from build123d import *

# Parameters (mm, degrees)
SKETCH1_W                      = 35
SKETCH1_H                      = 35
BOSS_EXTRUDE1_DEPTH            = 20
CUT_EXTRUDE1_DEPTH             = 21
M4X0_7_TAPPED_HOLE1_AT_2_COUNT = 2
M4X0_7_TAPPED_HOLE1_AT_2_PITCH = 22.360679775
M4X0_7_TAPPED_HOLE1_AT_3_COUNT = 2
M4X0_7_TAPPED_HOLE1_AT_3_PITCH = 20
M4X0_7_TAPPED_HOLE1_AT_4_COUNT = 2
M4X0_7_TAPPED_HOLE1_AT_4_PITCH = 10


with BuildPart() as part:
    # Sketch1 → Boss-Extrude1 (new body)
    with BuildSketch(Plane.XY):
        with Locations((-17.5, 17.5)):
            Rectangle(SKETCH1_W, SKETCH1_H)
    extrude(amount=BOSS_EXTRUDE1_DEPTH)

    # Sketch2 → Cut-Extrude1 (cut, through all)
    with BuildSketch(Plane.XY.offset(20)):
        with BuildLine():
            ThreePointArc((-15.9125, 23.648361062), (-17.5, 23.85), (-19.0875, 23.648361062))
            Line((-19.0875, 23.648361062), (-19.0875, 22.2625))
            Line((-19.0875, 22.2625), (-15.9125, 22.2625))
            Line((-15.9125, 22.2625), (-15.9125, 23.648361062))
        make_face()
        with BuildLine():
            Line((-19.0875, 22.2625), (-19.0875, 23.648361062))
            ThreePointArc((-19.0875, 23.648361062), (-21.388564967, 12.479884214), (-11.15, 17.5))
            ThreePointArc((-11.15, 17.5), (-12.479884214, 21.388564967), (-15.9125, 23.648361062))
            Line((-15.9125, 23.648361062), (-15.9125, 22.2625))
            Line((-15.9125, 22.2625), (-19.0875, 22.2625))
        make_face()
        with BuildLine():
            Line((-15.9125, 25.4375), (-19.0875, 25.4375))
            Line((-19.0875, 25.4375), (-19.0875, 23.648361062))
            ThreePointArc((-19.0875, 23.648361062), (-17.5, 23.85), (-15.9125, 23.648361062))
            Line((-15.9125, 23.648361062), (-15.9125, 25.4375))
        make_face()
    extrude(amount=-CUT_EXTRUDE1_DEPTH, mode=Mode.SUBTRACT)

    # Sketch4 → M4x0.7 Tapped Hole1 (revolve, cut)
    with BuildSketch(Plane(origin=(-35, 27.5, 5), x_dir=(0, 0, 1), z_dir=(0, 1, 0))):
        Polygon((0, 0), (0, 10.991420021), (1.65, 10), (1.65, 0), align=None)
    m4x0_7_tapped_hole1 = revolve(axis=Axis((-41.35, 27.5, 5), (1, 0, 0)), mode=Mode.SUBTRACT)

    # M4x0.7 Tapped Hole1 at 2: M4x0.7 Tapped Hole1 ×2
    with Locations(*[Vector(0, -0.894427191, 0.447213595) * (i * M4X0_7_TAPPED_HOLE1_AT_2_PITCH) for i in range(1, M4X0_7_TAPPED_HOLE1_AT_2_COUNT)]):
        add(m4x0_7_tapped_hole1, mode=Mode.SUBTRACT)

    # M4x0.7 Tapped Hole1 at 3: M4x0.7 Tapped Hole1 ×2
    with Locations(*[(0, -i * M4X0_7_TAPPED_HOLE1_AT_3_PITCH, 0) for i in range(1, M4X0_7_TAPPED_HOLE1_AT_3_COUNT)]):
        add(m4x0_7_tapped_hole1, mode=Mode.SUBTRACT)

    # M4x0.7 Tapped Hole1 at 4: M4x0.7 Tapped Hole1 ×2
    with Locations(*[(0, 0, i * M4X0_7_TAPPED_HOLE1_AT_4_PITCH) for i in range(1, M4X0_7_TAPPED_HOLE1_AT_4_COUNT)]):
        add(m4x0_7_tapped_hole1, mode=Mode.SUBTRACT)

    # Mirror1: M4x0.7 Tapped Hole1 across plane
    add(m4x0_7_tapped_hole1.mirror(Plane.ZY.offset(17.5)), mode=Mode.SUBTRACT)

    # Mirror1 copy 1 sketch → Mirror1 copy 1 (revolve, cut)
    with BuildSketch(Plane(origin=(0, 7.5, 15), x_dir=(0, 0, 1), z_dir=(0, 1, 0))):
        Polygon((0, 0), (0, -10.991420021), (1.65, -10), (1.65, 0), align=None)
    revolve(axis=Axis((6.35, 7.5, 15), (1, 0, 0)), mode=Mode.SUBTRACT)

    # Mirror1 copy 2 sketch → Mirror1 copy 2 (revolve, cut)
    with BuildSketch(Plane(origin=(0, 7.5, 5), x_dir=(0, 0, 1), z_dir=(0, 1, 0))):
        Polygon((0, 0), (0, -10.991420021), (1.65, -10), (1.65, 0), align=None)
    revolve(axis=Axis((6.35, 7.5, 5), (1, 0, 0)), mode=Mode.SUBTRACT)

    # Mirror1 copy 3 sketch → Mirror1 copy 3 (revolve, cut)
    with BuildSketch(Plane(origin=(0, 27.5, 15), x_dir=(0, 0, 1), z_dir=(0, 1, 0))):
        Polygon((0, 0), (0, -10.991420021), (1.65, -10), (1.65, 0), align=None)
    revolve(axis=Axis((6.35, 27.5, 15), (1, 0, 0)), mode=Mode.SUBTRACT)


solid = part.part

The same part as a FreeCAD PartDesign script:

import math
import FreeCAD as App
import Part
import Sketcher
Q = App.Units.Quantity

doc = App.newDocument("Part")
body = doc.addObject("PartDesign::Body", "Body")

sketch1 = body.newObject("Sketcher::SketchObject", "Sketch")
sketch1.AttachmentSupport = (doc.getObject("XY_Plane"), [""])
sketch1.MapMode = "FlatFace"
sketch1.addGeometry(Part.LineSegment(App.Vector(-35, 35, 0), App.Vector(-35, 0, 0)), False)
sketch1.addGeometry(Part.LineSegment(App.Vector(-35, 0, 0), App.Vector(0, 0, 0)), False)
sketch1.addGeometry(Part.LineSegment(App.Vector(0, 0, 0), App.Vector(0, 35, 0)), False)
sketch1.addGeometry(Part.LineSegment(App.Vector(0, 35, 0), App.Vector(-35, 35, 0)), False)
sketch1.addConstraint(Sketcher.Constraint("Coincident", 0, 2, 1, 1))
sketch1.addConstraint(Sketcher.Constraint("Coincident", 1, 2, 2, 1))
sketch1.addConstraint(Sketcher.Constraint("Coincident", 2, 2, 3, 1))
sketch1.addConstraint(Sketcher.Constraint("Coincident", 3, 2, 0, 1))
sketch1.addConstraint(Sketcher.Constraint("Vertical", 0))
sketch1.addConstraint(Sketcher.Constraint("Horizontal", 1))
sketch1.addConstraint(Sketcher.Constraint("Vertical", 2))
sketch1.addConstraint(Sketcher.Constraint("Horizontal", 3))
sketch1.addConstraint(Sketcher.Constraint("Coincident", 1, 2, -1, 1))
sketch1.addConstraint(Sketcher.Constraint("Equal", 3, 0))
sketch1.addConstraint(Sketcher.Constraint("DistanceX", 1, 1, 1, 2, 35.0))
pad1 = body.newObject("PartDesign::Pad", "Pad")
pad1.Profile = sketch1
pad1.Length = 20

sketch2 = body.newObject("Sketcher::SketchObject", "Sketch001")
sketch2.AttachmentSupport = (doc.getObject("XY_Plane"), [""])
sketch2.MapMode = "FlatFace"
sketch2.AttachmentOffset = App.Placement(App.Vector(0, 0, 20), App.Rotation())
sketch2.addGeometry(Part.ArcOfCircle(Part.Circle(App.Vector(-17.5, 17.5, 0), App.Vector(0, 0, 1), 6.3), math.radians(104), math.radians(360)), False)
sketch2.addGeometry(Part.ArcOfCircle(Part.Circle(App.Vector(-17.5, 17.5, 0), App.Vector(0, 0, 1), 6.3), math.radians(0), math.radians(76)), False)
sketch2.addGeometry(Part.LineSegment(App.Vector(-15.9, 23.6, 0), App.Vector(-15.9, 25.4, 0)), False)
sketch2.addGeometry(Part.LineSegment(App.Vector(-15.9, 25.4, 0), App.Vector(-19.1, 25.4, 0)), False)
sketch2.addGeometry(Part.LineSegment(App.Vector(-19.1, 25.4, 0), App.Vector(-19.1, 23.6, 0)), False)
sketch2.addConstraint(Sketcher.Constraint("Tangent", 0, 2, 1, 1))
sketch2.addConstraint(Sketcher.Constraint("Coincident", 1, 2, 2, 1))
sketch2.addConstraint(Sketcher.Constraint("Coincident", 2, 2, 3, 1))
sketch2.addConstraint(Sketcher.Constraint("Coincident", 3, 2, 4, 1))
sketch2.addConstraint(Sketcher.Constraint("Coincident", 4, 2, 0, 1))
sketch2.addConstraint(Sketcher.Constraint("Vertical", 2))
sketch2.addConstraint(Sketcher.Constraint("Horizontal", 3))
sketch2.addConstraint(Sketcher.Constraint("Vertical", 4))
sketch2.addConstraint(Sketcher.Constraint("Equal", 0, 1))
sketch2.addConstraint(Sketcher.Constraint("Horizontal", 1, 3, 0, 2))
sketch2.addConstraint(Sketcher.Constraint("Horizontal", 1, 2, 4, 2))
sketch2.addConstraint(Sketcher.Constraint("Radius", 0, 6.35))
sketch2.addConstraint(Sketcher.Constraint("DistanceX", 0, 3, -1, 1, 17.5))
sketch2.addConstraint(Sketcher.Constraint("DistanceY", -1, 1, 0, 3, 17.5))
sketch2.addConstraint(Sketcher.Constraint("DistanceX", 3, 2, 3, 1, 3.175))
sketch2.addConstraint(Sketcher.Constraint("DistanceY", 2, 1, 2, 2, 1.789139))
pocket1 = body.newObject("PartDesign::Pocket", "Pocket")
pocket1.Profile = sketch2
pocket1.Type = "ThroughAll"

sketch3 = body.newObject("Sketcher::SketchObject", "Sketch002")
sketch3.AttachmentSupport = (doc.getObject("XZ_Plane"), [""])
sketch3.MapMode = "FlatFace"
sketch3.AttachmentOffset = App.Placement(App.Vector(0, 0, -27.5), App.Rotation())
sketch3.addGeometry(Part.LineSegment(App.Vector(-24, 5, 0), App.Vector(-35, 5, 0)), False)
sketch3.addGeometry(Part.LineSegment(App.Vector(-35, 5, 0), App.Vector(-35, 6.7, 0)), False)
sketch3.addGeometry(Part.LineSegment(App.Vector(-35, 6.7, 0), App.Vector(-25, 6.7, 0)), False)
sketch3.addGeometry(Part.LineSegment(App.Vector(-25, 6.7, 0), App.Vector(-24, 5, 0)), False)
sketch3.addGeometry(Part.LineSegment(App.Vector(-35, 5, 0), App.Vector(-24, 5, 0)), True)
sketch3.addConstraint(Sketcher.Constraint("Coincident", 0, 2, 1, 1))
sketch3.addConstraint(Sketcher.Constraint("Coincident", 1, 2, 2, 1))
sketch3.addConstraint(Sketcher.Constraint("Coincident", 2, 2, 3, 1))
sketch3.addConstraint(Sketcher.Constraint("Coincident", 3, 2, 0, 1))
sketch3.addConstraint(Sketcher.Constraint("Horizontal", 0))
sketch3.addConstraint(Sketcher.Constraint("Vertical", 1))
sketch3.addConstraint(Sketcher.Constraint("Horizontal", 2))
sketch3.addConstraint(Sketcher.Constraint("Horizontal", 4))
sketch3.addConstraint(Sketcher.Constraint("Coincident", 4, 1, 0, 2))
sketch3.addConstraint(Sketcher.Constraint("Equal", 0, 4))
sketch3.addConstraint(Sketcher.Constraint("DistanceX", 2, 1, 2, 2, 10.0))
sketch3.addConstraint(Sketcher.Constraint("Angle", 3, Q("-59 deg")))
sketch3.addConstraint(Sketcher.Constraint("DistanceX", 0, 2, -1, 1, 35.0))
sketch3.addConstraint(Sketcher.Constraint("DistanceY", -1, 1, 0, 2, 5.0))
sketch3.addConstraint(Sketcher.Constraint("DistanceY", 1, 1, 1, 2, 1.65))
groove = body.newObject("PartDesign::Groove", "Groove")
groove.Profile = sketch3
groove.ReferenceAxis = (sketch3, ["Axis0"])
groove.Angle = 360
doc.recompute()

datumline = body.newObject("PartDesign::Line", "DatumLine")
datumline.Placement = App.Placement(App.Vector(0, 0, 0), App.Rotation(App.Vector(0, 0, 1), App.Vector(0, -0.894427191, 0.447213595)))
linearpattern = body.newObject("PartDesign::LinearPattern", "LinearPattern")
linearpattern.Originals = [groove]
linearpattern.Direction = (datumline, [""])
linearpattern.Mode = "offset"
linearpattern.Offset = 22.36068
linearpattern.Occurrences = 2
body.Tip = linearpattern
doc.recompute()

linearpattern2 = body.newObject("PartDesign::LinearPattern", "LinearPattern001")
linearpattern2.Originals = [groove]
linearpattern2.Direction = (doc.getObject("Y_Axis"), [""])
linearpattern2.Mode = "offset"
linearpattern2.Offset = 20
linearpattern2.Occurrences = 2
linearpattern2.Reversed = True
body.Tip = linearpattern2
doc.recompute()

linearpattern3 = body.newObject("PartDesign::LinearPattern", "LinearPattern002")
linearpattern3.Originals = [groove]
linearpattern3.Direction = (doc.getObject("Z_Axis"), [""])
linearpattern3.Mode = "offset"
linearpattern3.Offset = 10
linearpattern3.Occurrences = 2
body.Tip = linearpattern3
doc.recompute()

datumplane = body.newObject("PartDesign::Plane", "DatumPlane")
datumplane.AttachmentSupport = (doc.getObject("YZ_Plane"), [""])
datumplane.MapMode = "FlatFace"
datumplane.AttachmentOffset = App.Placement(App.Vector(0, 0, -17.5), App.Rotation())
mirrored = body.newObject("PartDesign::Mirrored", "Mirrored")
mirrored.Originals = [groove]
mirrored.MirrorPlane = (datumplane, [""])
body.Tip = mirrored

sketch4 = body.newObject("Sketcher::SketchObject", "Sketch003")
sketch4.AttachmentSupport = (doc.getObject("XZ_Plane"), [""])
sketch4.MapMode = "FlatFace"
sketch4.AttachmentOffset = App.Placement(App.Vector(0, 0, -7.5), App.Rotation())
sketch4.addGeometry(Part.LineSegment(App.Vector(0, 15, 0), App.Vector(-11, 15, 0)), False)
sketch4.addGeometry(Part.LineSegment(App.Vector(-11, 15, 0), App.Vector(-10, 16.6, 0)), False)
sketch4.addGeometry(Part.LineSegment(App.Vector(-10, 16.6, 0), App.Vector(0, 16.6, 0)), False)
sketch4.addGeometry(Part.LineSegment(App.Vector(0, 16.6, 0), App.Vector(0, 15, 0)), False)
sketch4.addGeometry(Part.LineSegment(App.Vector(-11, 15, 0), App.Vector(0, 15, 0)), True)
sketch4.addConstraint(Sketcher.Constraint("Coincident", 0, 2, 1, 1))
sketch4.addConstraint(Sketcher.Constraint("Coincident", 1, 2, 2, 1))
sketch4.addConstraint(Sketcher.Constraint("Coincident", 2, 2, 3, 1))
sketch4.addConstraint(Sketcher.Constraint("Coincident", 3, 2, 0, 1))
sketch4.addConstraint(Sketcher.Constraint("Horizontal", 0))
sketch4.addConstraint(Sketcher.Constraint("Horizontal", 2))
sketch4.addConstraint(Sketcher.Constraint("Vertical", 3))
sketch4.addConstraint(Sketcher.Constraint("Horizontal", 4))
sketch4.addConstraint(Sketcher.Constraint("Coincident", 4, 1, 0, 2))
sketch4.addConstraint(Sketcher.Constraint("PointOnObject", 2, 2, -2))
sketch4.addConstraint(Sketcher.Constraint("PointOnObject", 4, 2, -2))
sketch4.addConstraint(Sketcher.Constraint("DistanceX", 2, 1, 2, 2, 10.0))
sketch4.addConstraint(Sketcher.Constraint("Angle", 1, Q("59 deg")))
sketch4.addConstraint(Sketcher.Constraint("DistanceY", -1, 1, 0, 2, 15.0))
sketch4.addConstraint(Sketcher.Constraint("DistanceY", 3, 2, 3, 1, 1.65))
groove2 = body.newObject("PartDesign::Groove", "Groove001")
groove2.Profile = sketch4
groove2.ReferenceAxis = (sketch4, ["Axis0"])
groove2.Angle = 360

sketch5 = body.newObject("Sketcher::SketchObject", "Sketch004")
sketch5.AttachmentSupport = (doc.getObject("XZ_Plane"), [""])
sketch5.MapMode = "FlatFace"
sketch5.AttachmentOffset = App.Placement(App.Vector(0, 0, -7.5), App.Rotation())
sketch5.addGeometry(Part.LineSegment(App.Vector(0, 5, 0), App.Vector(-11, 5, 0)), False)
sketch5.addGeometry(Part.LineSegment(App.Vector(-11, 5, 0), App.Vector(-10, 6.7, 0)), False)
sketch5.addGeometry(Part.LineSegment(App.Vector(-10, 6.7, 0), App.Vector(0, 6.7, 0)), False)
sketch5.addGeometry(Part.LineSegment(App.Vector(0, 6.7, 0), App.Vector(0, 5, 0)), False)
sketch5.addGeometry(Part.LineSegment(App.Vector(-11, 5, 0), App.Vector(0, 5, 0)), True)
sketch5.addConstraint(Sketcher.Constraint("Coincident", 0, 2, 1, 1))
sketch5.addConstraint(Sketcher.Constraint("Coincident", 1, 2, 2, 1))
sketch5.addConstraint(Sketcher.Constraint("Coincident", 2, 2, 3, 1))
sketch5.addConstraint(Sketcher.Constraint("Coincident", 3, 2, 0, 1))
sketch5.addConstraint(Sketcher.Constraint("Horizontal", 0))
sketch5.addConstraint(Sketcher.Constraint("Horizontal", 2))
sketch5.addConstraint(Sketcher.Constraint("Vertical", 3))
sketch5.addConstraint(Sketcher.Constraint("Horizontal", 4))
sketch5.addConstraint(Sketcher.Constraint("Coincident", 4, 1, 0, 2))
sketch5.addConstraint(Sketcher.Constraint("PointOnObject", 2, 2, -2))
sketch5.addConstraint(Sketcher.Constraint("PointOnObject", 4, 2, -2))
sketch5.addConstraint(Sketcher.Constraint("DistanceX", 2, 1, 2, 2, 10.0))
sketch5.addConstraint(Sketcher.Constraint("Angle", 1, Q("59 deg")))
sketch5.addConstraint(Sketcher.Constraint("DistanceY", -1, 1, 0, 2, 5.0))
sketch5.addConstraint(Sketcher.Constraint("DistanceY", 3, 2, 3, 1, 1.65))
groove3 = body.newObject("PartDesign::Groove", "Groove002")
groove3.Profile = sketch5
groove3.ReferenceAxis = (sketch5, ["Axis0"])
groove3.Angle = 360

sketch6 = body.newObject("Sketcher::SketchObject", "Sketch005")
sketch6.AttachmentSupport = (doc.getObject("XZ_Plane"), [""])
sketch6.MapMode = "FlatFace"
sketch6.AttachmentOffset = App.Placement(App.Vector(0, 0, -27.5), App.Rotation())
sketch6.addGeometry(Part.LineSegment(App.Vector(0, 15, 0), App.Vector(-11, 15, 0)), False)
sketch6.addGeometry(Part.LineSegment(App.Vector(-11, 15, 0), App.Vector(-10, 16.6, 0)), False)
sketch6.addGeometry(Part.LineSegment(App.Vector(-10, 16.6, 0), App.Vector(0, 16.6, 0)), False)
sketch6.addGeometry(Part.LineSegment(App.Vector(0, 16.6, 0), App.Vector(0, 15, 0)), False)
sketch6.addGeometry(Part.LineSegment(App.Vector(-11, 15, 0), App.Vector(0, 15, 0)), True)
sketch6.addConstraint(Sketcher.Constraint("Coincident", 0, 2, 1, 1))
sketch6.addConstraint(Sketcher.Constraint("Coincident", 1, 2, 2, 1))
sketch6.addConstraint(Sketcher.Constraint("Coincident", 2, 2, 3, 1))
sketch6.addConstraint(Sketcher.Constraint("Coincident", 3, 2, 0, 1))
sketch6.addConstraint(Sketcher.Constraint("Horizontal", 0))
sketch6.addConstraint(Sketcher.Constraint("Horizontal", 2))
sketch6.addConstraint(Sketcher.Constraint("Vertical", 3))
sketch6.addConstraint(Sketcher.Constraint("Horizontal", 4))
sketch6.addConstraint(Sketcher.Constraint("Coincident", 4, 1, 0, 2))
sketch6.addConstraint(Sketcher.Constraint("PointOnObject", 2, 2, -2))
sketch6.addConstraint(Sketcher.Constraint("PointOnObject", 4, 2, -2))
sketch6.addConstraint(Sketcher.Constraint("DistanceX", 2, 1, 2, 2, 10.0))
sketch6.addConstraint(Sketcher.Constraint("Angle", 1, Q("59 deg")))
sketch6.addConstraint(Sketcher.Constraint("DistanceY", -1, 1, 0, 2, 15.0))
sketch6.addConstraint(Sketcher.Constraint("DistanceY", 3, 2, 3, 1, 1.65))
groove4 = body.newObject("PartDesign::Groove", "Groove003")
groove4.Profile = sketch6
groove4.ReferenceAxis = (sketch6, ["Axis0"])
groove4.Angle = 360

doc.recompute()
